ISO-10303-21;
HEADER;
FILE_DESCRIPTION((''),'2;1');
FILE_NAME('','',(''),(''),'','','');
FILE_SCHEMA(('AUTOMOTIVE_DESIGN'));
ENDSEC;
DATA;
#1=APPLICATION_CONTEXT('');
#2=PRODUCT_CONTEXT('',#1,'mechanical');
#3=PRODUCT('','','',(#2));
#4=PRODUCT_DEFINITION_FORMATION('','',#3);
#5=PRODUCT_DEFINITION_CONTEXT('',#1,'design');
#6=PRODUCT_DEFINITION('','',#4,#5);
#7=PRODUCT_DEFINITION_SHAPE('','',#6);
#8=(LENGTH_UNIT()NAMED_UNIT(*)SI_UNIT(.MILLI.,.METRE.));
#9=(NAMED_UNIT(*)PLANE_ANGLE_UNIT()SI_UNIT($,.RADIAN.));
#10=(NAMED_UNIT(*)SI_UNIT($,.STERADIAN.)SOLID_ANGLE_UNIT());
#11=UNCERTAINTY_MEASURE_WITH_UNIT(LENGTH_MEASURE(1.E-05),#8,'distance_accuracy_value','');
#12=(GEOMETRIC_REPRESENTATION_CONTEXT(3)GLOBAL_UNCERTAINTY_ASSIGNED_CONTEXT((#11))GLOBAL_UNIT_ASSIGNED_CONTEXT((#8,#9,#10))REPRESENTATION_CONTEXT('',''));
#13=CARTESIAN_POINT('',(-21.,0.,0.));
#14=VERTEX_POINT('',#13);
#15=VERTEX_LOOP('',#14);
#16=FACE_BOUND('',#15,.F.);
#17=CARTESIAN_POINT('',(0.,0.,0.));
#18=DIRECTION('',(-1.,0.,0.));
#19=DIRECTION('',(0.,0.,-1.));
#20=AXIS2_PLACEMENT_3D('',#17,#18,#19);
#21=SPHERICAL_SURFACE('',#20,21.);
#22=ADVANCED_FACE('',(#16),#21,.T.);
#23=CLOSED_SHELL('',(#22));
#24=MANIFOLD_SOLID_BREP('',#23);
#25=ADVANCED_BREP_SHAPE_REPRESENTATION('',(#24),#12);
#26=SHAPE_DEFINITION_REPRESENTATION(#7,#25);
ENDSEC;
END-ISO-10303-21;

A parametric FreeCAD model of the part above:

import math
import FreeCAD as App
import Part
import Sketcher
from FreeCAD import Vector

doc = App.newDocument("Part")
body = doc.addObject("PartDesign::Body", "Body")

# Sketch on XZ plane
sketch1 = body.newObject("Sketcher::SketchObject", "Sketch")
sketch1.AttachmentSupport = (doc.getObject("XZ_Plane"), [""])
sketch1.MapMode = "FlatFace"
sketch1.addGeometry([
    Part.ArcOfCircle(Part.Circle(Vector(0, 0, 0), Vector(0, 0, 1), 21), math.radians(180), math.radians(360)),
    Part.LineSegment(Vector(-21, 0, 0), Vector(21, 0, 0)),
], False)
sketch1.addConstraint([
    Sketcher.Constraint("Coincident", 0, 1, 1, 1),
    Sketcher.Constraint("Coincident", 1, 2, 0, 2),
    Sketcher.Constraint("Horizontal", 1),
    Sketcher.Constraint("Coincident", 0, 3, -1, 1),
    Sketcher.Constraint("PointOnObject", 0, 1, -1),
    Sketcher.Constraint("Radius", 0, 21.0),
])
revolution = body.newObject("PartDesign::Revolution", "Revolution")
revolution.Profile = sketch1
revolution.ReferenceAxis = (sketch1, ["H_Axis"])
revolution.Angle = 360

doc.recompute()
